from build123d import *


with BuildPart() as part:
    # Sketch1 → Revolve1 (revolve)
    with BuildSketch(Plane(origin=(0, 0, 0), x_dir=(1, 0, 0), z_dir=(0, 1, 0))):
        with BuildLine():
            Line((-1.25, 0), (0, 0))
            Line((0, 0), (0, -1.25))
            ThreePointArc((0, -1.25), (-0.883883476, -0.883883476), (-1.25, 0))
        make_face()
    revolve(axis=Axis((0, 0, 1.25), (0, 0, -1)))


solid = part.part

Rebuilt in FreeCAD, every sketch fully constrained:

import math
import FreeCAD as App
import Part
import Sketcher
from FreeCAD import Vector

doc = App.newDocument("Part")
params = doc.addObject("Spreadsheet::Sheet", "Params")
for row, (alias, value) in enumerate([
    ("sketch1_radius", "1.25 mm"),
    ("revolution_angle", "360 deg"),
], start=1):
    params.set(f"A{row}", alias)
    params.set(f"B{row}", "=" + value)
    params.setAlias(f"B{row}", alias)

body = doc.addObject("PartDesign::Body", "Body")

# Sketch on XZ plane
sketch1 = body.newObject("Sketcher::SketchObject", "Sketch")
sketch1.AttachmentSupport = (doc.getObject("XZ_Plane"), [""])
sketch1.MapMode = "FlatFace"
sketch1.addGeometry([
    Part.LineSegment(Vector(0, 0, 0), Vector(-1.25, 0, 0)),
    Part.ArcOfCircle(Part.Circle(Vector(0, 0, 0), Vector(0, 0, 1), 1.25), math.radians(90), math.radians(180)),
    Part.LineSegment(Vector(0, 1.25, 0), Vector(0, 0, 0)),
], False)
sketch1.addConstraint([
    Sketcher.Constraint("Coincident", 0, 2, 1, 2),
    Sketcher.Constraint("Coincident", 1, 1, 2, 1),
    Sketcher.Constraint("Coincident", 2, 2, 0, 1),
    Sketcher.Constraint("Horizontal", 0),
    Sketcher.Constraint("Vertical", 2),
    Sketcher.Constraint("Coincident", 1, 3, -1, 1),
    Sketcher.Constraint("Coincident", 2, 2, -1, 1),
    Sketcher.Constraint("Radius", 1, 1.25),
])
sketch1.setExpression("Constraints[7]", "Params.sketch1_radius")
revolution = body.newObject("PartDesign::Revolution", "Revolution")
revolution.Profile = sketch1
revolution.ReferenceAxis = (sketch1, ["V_Axis"])
revolution.setExpression("Angle", "Params.revolution_angle")

doc.recompute()
